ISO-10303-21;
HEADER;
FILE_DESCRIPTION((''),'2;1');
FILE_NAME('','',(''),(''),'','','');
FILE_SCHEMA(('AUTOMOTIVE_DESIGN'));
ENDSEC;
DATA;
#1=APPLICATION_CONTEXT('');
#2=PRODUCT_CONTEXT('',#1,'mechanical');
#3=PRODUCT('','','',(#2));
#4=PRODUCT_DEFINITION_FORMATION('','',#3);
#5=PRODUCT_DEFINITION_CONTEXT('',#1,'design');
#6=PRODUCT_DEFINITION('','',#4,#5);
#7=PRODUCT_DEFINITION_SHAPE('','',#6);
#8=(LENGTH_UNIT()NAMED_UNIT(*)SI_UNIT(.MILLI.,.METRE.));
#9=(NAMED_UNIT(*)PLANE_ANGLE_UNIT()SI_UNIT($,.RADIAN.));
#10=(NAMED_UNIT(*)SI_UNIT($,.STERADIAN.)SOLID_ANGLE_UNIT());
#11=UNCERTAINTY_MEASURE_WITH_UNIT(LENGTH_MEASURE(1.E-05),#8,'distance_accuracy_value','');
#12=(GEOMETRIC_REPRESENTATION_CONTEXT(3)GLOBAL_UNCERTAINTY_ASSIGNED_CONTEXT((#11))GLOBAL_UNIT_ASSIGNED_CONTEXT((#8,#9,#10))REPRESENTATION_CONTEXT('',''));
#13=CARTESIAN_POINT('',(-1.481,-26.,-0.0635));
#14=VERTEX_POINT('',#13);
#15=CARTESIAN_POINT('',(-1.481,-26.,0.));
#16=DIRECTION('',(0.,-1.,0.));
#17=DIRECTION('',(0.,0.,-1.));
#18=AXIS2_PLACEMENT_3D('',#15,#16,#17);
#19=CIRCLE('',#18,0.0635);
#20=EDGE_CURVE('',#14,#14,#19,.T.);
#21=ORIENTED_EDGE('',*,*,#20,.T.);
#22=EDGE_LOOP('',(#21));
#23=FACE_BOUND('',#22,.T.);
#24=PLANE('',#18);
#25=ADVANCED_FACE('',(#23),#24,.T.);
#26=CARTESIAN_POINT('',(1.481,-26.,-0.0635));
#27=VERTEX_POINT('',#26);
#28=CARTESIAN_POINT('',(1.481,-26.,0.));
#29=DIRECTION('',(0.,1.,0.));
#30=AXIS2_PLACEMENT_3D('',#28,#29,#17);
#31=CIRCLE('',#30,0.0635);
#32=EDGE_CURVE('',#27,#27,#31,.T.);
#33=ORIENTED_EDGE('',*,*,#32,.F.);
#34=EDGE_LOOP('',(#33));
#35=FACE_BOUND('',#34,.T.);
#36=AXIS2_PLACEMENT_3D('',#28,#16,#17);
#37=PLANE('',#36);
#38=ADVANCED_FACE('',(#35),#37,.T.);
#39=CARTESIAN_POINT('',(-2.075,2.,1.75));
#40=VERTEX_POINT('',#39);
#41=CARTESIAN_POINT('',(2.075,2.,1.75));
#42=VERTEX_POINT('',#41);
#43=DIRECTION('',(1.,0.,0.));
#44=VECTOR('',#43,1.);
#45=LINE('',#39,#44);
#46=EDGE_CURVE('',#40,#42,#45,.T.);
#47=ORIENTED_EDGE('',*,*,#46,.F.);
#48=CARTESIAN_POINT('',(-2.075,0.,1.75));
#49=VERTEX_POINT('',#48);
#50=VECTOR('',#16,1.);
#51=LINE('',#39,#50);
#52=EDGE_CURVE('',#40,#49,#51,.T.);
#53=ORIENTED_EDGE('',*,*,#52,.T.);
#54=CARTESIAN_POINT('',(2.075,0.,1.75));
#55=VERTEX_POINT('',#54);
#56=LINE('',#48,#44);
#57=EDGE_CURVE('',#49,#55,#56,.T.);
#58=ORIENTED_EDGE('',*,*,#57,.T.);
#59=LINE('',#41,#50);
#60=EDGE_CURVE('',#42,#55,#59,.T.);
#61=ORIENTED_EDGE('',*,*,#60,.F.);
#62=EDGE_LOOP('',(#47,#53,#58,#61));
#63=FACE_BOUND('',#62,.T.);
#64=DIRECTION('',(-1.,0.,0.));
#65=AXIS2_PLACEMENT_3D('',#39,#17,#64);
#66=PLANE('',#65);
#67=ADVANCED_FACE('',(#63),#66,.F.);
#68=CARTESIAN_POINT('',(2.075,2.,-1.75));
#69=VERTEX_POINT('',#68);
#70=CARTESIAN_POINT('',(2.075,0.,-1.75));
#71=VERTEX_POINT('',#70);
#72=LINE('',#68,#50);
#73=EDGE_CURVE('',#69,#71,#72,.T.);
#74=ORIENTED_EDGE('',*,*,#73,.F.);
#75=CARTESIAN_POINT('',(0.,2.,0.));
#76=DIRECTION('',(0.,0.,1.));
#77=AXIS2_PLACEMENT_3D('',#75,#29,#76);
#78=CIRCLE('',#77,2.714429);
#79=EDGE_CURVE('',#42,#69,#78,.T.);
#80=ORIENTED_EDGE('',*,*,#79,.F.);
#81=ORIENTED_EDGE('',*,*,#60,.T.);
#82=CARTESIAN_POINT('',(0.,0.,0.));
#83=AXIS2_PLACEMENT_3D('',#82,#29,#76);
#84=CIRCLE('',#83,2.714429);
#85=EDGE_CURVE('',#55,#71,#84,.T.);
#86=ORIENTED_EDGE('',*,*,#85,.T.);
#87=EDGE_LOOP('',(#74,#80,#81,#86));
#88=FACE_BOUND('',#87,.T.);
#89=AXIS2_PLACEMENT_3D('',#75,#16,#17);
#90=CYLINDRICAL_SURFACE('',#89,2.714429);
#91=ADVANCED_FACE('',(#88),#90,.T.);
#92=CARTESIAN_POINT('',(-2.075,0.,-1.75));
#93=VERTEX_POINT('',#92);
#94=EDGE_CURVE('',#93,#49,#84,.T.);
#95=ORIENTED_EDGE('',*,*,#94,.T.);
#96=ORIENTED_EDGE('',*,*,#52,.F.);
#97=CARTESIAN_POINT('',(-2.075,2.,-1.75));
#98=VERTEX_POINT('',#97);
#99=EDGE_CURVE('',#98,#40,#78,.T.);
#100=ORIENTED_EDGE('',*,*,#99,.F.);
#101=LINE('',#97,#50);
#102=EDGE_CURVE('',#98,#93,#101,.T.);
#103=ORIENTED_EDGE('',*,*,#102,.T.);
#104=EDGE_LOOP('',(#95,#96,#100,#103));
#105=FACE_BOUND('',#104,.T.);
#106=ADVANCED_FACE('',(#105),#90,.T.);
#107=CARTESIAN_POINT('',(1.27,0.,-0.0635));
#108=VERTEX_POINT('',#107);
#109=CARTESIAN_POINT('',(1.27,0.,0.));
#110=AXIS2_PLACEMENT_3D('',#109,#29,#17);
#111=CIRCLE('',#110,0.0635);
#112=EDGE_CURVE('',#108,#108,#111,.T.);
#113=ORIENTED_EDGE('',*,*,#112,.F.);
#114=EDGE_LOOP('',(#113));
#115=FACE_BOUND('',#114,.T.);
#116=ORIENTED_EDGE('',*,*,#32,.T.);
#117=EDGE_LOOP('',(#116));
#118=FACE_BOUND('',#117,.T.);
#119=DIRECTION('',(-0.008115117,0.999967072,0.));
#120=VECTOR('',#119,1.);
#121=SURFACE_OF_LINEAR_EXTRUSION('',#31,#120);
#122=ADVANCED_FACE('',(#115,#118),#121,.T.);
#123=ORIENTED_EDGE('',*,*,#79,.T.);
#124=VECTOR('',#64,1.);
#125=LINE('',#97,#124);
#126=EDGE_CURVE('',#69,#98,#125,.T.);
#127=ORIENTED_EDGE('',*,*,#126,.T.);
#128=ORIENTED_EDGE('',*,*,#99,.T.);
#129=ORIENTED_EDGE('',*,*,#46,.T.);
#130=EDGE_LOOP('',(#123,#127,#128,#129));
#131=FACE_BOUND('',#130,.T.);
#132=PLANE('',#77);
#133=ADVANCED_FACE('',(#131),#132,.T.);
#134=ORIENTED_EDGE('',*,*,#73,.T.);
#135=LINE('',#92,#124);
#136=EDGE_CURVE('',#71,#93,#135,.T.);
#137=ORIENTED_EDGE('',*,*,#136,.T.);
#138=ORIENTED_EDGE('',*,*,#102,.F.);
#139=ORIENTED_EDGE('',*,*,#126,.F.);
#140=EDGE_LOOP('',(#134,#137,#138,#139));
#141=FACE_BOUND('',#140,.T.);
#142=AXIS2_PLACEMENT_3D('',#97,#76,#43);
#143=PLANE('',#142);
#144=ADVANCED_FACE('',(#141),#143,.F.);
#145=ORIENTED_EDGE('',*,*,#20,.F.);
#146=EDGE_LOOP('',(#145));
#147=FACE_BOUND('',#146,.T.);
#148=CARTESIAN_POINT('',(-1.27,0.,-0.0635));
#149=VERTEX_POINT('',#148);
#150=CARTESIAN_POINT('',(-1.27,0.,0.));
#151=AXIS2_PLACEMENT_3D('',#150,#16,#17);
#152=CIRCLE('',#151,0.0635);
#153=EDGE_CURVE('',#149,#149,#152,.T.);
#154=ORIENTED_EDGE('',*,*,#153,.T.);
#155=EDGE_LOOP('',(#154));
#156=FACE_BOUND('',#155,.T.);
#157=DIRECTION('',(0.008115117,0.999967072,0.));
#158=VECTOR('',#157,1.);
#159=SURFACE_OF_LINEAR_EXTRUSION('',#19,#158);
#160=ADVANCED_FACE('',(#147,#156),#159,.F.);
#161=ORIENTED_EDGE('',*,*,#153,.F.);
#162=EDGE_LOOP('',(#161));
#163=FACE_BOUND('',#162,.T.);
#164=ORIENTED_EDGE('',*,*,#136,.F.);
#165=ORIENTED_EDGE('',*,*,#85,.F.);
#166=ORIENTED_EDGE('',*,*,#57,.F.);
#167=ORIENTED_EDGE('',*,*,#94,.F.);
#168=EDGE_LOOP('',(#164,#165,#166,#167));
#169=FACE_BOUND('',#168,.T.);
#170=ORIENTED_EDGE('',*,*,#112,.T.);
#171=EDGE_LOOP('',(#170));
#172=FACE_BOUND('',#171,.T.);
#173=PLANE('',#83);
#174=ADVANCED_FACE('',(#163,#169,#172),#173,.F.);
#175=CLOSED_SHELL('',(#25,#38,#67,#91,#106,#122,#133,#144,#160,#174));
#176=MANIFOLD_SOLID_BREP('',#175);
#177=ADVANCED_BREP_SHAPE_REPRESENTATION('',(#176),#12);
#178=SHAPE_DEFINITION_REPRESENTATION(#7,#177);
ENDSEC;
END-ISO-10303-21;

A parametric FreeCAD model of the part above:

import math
import FreeCAD as App
import Part
import Sketcher
Q = App.Units.Quantity

doc = App.newDocument("Part")
body = doc.addObject("PartDesign::Body", "Body")

# Sketch on XZ plane
sketch1 = body.newObject("Sketcher::SketchObject", "Sketch")
sketch1.AttachmentSupport = (doc.getObject("XZ_Plane"), [""])
sketch1.MapMode = "FlatFace"
sketch1.addGeometry([
    Part.LineSegment(App.Vector(2.075, -1.75, 0), App.Vector(-2.075, -1.75, 0)),
    Part.ArcOfCircle(Part.Circle(App.Vector(0, 0, 0), App.Vector(0, 0, 1), 2.714429), math.radians(139.856604), math.radians(220.143396)),
    Part.LineSegment(App.Vector(-2.075, 1.75, 0), App.Vector(2.075, 1.75, 0)),
    Part.ArcOfCircle(Part.Circle(App.Vector(0, 0, 0), App.Vector(0, 0, 1), 2.714429), math.radians(-40.143396), math.radians(40.143396)),
], False)
sketch1.addConstraint([
    Sketcher.Constraint("Coincident", 0, 2, 1, 2),
    Sketcher.Constraint("Coincident", 1, 1, 2, 1),
    Sketcher.Constraint("Coincident", 2, 2, 3, 2),
    Sketcher.Constraint("Coincident", 3, 1, 0, 1),
    Sketcher.Constraint("Horizontal", 0),
    Sketcher.Constraint("Horizontal", 2),
    Sketcher.Constraint("Coincident", 1, 3, -1, 1),
    Sketcher.Constraint("Coincident", 3, 3, -1, 1),
    Sketcher.Constraint("Equal", 1, 3),
    Sketcher.Constraint("Vertical", 0, 2, 1, 1),
    Sketcher.Constraint("DistanceX", 0, 2, 0, 1, Q("4.15 mm")),
    Sketcher.Constraint("DistanceY", 0, 2, 1, 1, Q("3.5 mm")),
])
pad1 = body.newObject("PartDesign::Pad", "Pad")
pad1.Profile = sketch1
pad1.Length = 2
pad1.Reversed = True

# Sketch on XZ plane
sketch2 = body.newObject("Sketcher::SketchObject", "Sketch001")
sketch2.AttachmentSupport = (doc.getObject("XZ_Plane"), [""])
sketch2.MapMode = "FlatFace"
sketch2.addGeometry(Part.Circle(App.Vector(-1.27, 0, 0), App.Vector(0, 0, 1), 0.0635), False)
sketch2.addConstraint([
    Sketcher.Constraint("PointOnObject", 0, 3, -1),
    Sketcher.Constraint("Diameter", 0, Q("0.127 mm")),
    Sketcher.Constraint("DistanceX", 0, 3, -1, 1, Q("1.27 mm")),
])

# Sketch on an angled plane
sketch3 = body.newObject("Sketcher::SketchObject", "Sketch002")
sketch3.Placement = App.Placement(App.Vector(-2.074863, 0.016838, 0), App.Rotation(App.Vector(-0.008115117, -0.999967072, 0), App.Vector(0, 0, 1), App.Vector(-0.999967072, 0.008115117, 0), "ZXY"))
sketch3.addGeometry(Part.LineSegment(App.Vector(0.016839, 0, 0), App.Vector(26.017695, 0, 0)), False)
sketch3.addConstraint([
    Sketcher.Constraint("Horizontal", 0),
    Sketcher.Constraint("PointOnObject", 0, 1, -1),
    Sketcher.Constraint("DistanceX", 0, 1, 0, 2, Q("26.000856 mm")),
    Sketcher.Constraint("DistanceX", -1, 1, 0, 1, Q("0.016839 mm")),
])
doc.recompute()

additivepipe = body.newObject("PartDesign::AdditivePipe", "AdditivePipe")
additivepipe.Profile = sketch2
additivepipe.Spine = (sketch3, ["Edge1"])
doc.recompute()

mirrored = body.newObject("PartDesign::Mirrored", "Mirrored")
mirrored.Originals = [additivepipe]
mirrored.MirrorPlane = (doc.getObject("YZ_Plane"), [""])
body.Tip = mirrored

doc.recompute()
